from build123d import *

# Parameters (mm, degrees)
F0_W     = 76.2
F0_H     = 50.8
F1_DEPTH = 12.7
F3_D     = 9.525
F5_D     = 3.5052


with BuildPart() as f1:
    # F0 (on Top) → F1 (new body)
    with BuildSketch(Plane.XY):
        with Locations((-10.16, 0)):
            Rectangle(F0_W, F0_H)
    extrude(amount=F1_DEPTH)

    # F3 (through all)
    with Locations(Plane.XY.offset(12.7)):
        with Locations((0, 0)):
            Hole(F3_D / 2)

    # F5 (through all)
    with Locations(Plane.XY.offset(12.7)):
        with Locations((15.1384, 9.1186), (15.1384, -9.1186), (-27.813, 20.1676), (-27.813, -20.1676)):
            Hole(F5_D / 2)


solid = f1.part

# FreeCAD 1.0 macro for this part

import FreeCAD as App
import Part
import Sketcher
Q = App.Units.Quantity


def add_polygon(sketch, points):
    """Adds a closed chain of lines whose ends are joined by coincident constraints."""
    first, n = sketch.GeometryCount, len(points)
    for a, b in zip(points, points[1:] + points[:1]):
        sketch.addGeometry(Part.LineSegment(App.Vector(*a, 0), App.Vector(*b, 0)), False)
    for i in range(n):
        sketch.addConstraint(Sketcher.Constraint("Coincident", first + i, 2, first + (i + 1) % n, 1))

doc = App.newDocument("Part")
body = doc.addObject("PartDesign::Body", "Body")

# Sketch on XY plane
sketch1 = body.newObject("Sketcher::SketchObject", "Sketch")
sketch1.AttachmentSupport = (doc.getObject("XY_Plane"), [""])
sketch1.MapMode = "FlatFace"
add_polygon(sketch1, [(-48.26, 25.4), (-48.26, -25.4), (27.94, -25.4), (27.94, 25.4)])  # lines 0-3
sketch1.addConstraint([
    Sketcher.Constraint("Vertical", 0),
    Sketcher.Constraint("Horizontal", 1),
    Sketcher.Constraint("Vertical", 2),
    Sketcher.Constraint("Horizontal", 3),
    Sketcher.Constraint("DistanceX", 1, 1, 1, 2, Q("3 in")),
    Sketcher.Constraint("DistanceY", 0, 2, 0, 1, Q("2 in")),
    Sketcher.Constraint("DistanceY", 0, 2, -1, 1, Q("1 in")),
    Sketcher.Constraint("DistanceX", 0, 2, -1, 1, Q("1.9 in")),
])
pad1 = body.newObject("PartDesign::Pad", "Pad")
pad1.Profile = sketch1
pad1.Length = Q("0.5 in")

# Sketch on XY plane
sketch2 = body.newObject("Sketcher::SketchObject", "Sketch001")
sketch2.AttachmentSupport = (doc.getObject("XY_Plane"), [""])
sketch2.MapMode = "FlatFace"
sketch2.AttachmentOffset = App.Placement(App.Vector(0, 0, 0.5 * 25.4), App.Rotation())
sketch2.addGeometry(Part.Circle(App.Vector(0, 0, 0), App.Vector(0, 0, 1), 4.7625), False)
sketch2.addConstraint([
    Sketcher.Constraint("Coincident", 0, 3, -1, 1),
    Sketcher.Constraint("Diameter", 0, Q("0.375 in")),
])
doc.recompute()
hole = body.newObject("PartDesign::Hole", "Hole")
hole.Profile = sketch2
hole.ThreadType = "None"
hole.Diameter = Q("0.375 in")
hole.DepthType = "ThroughAll"

# Sketch on XY plane
sketch3 = body.newObject("Sketcher::SketchObject", "Sketch002")
sketch3.AttachmentSupport = (doc.getObject("XY_Plane"), [""])
sketch3.MapMode = "FlatFace"
sketch3.AttachmentOffset = App.Placement(App.Vector(0, 0, 0.5 * 25.4), App.Rotation())
sketch3.addGeometry([
    Part.Circle(App.Vector(15.1384, 9.1186, 0), App.Vector(0, 0, 1), 1.7526),
    Part.Circle(App.Vector(15.1384, -9.1186, 0), App.Vector(0, 0, 1), 1.7526),
    Part.Circle(App.Vector(-27.813, 20.1676, 0), App.Vector(0, 0, 1), 1.7526),
    Part.Circle(App.Vector(-27.813, -20.1676, 0), App.Vector(0, 0, 1), 1.7526),
], False)
sketch3.addConstraint([
    Sketcher.Constraint("Equal", 0, 1),
    Sketcher.Constraint("Equal", 1, 2),
    Sketcher.Constraint("Equal", 2, 3),
    Sketcher.Constraint("Symmetric", 0, 3, 1, 3, -1),
    Sketcher.Constraint("Symmetric", 2, 3, 3, 3, -1),
    Sketcher.Constraint("Diameter", 0, Q("0.138 in")),
    Sketcher.Constraint("DistanceX", -1, 1, 0, 3, Q("0.596 in")),
    Sketcher.Constraint("DistanceY", -1, 1, 0, 3, Q("0.359 in")),
    Sketcher.Constraint("DistanceX", 2, 3, -1, 1, Q("1.095 in")),
    Sketcher.Constraint("DistanceY", -1, 1, 2, 3, Q("0.794 in")),
])
doc.recompute()
hole2 = body.newObject("PartDesign::Hole", "Hole001")
hole2.Profile = sketch3
hole2.ThreadType = "None"
hole2.Diameter = Q("0.138 in")
hole2.DepthType = "ThroughAll"

doc.recompute()
